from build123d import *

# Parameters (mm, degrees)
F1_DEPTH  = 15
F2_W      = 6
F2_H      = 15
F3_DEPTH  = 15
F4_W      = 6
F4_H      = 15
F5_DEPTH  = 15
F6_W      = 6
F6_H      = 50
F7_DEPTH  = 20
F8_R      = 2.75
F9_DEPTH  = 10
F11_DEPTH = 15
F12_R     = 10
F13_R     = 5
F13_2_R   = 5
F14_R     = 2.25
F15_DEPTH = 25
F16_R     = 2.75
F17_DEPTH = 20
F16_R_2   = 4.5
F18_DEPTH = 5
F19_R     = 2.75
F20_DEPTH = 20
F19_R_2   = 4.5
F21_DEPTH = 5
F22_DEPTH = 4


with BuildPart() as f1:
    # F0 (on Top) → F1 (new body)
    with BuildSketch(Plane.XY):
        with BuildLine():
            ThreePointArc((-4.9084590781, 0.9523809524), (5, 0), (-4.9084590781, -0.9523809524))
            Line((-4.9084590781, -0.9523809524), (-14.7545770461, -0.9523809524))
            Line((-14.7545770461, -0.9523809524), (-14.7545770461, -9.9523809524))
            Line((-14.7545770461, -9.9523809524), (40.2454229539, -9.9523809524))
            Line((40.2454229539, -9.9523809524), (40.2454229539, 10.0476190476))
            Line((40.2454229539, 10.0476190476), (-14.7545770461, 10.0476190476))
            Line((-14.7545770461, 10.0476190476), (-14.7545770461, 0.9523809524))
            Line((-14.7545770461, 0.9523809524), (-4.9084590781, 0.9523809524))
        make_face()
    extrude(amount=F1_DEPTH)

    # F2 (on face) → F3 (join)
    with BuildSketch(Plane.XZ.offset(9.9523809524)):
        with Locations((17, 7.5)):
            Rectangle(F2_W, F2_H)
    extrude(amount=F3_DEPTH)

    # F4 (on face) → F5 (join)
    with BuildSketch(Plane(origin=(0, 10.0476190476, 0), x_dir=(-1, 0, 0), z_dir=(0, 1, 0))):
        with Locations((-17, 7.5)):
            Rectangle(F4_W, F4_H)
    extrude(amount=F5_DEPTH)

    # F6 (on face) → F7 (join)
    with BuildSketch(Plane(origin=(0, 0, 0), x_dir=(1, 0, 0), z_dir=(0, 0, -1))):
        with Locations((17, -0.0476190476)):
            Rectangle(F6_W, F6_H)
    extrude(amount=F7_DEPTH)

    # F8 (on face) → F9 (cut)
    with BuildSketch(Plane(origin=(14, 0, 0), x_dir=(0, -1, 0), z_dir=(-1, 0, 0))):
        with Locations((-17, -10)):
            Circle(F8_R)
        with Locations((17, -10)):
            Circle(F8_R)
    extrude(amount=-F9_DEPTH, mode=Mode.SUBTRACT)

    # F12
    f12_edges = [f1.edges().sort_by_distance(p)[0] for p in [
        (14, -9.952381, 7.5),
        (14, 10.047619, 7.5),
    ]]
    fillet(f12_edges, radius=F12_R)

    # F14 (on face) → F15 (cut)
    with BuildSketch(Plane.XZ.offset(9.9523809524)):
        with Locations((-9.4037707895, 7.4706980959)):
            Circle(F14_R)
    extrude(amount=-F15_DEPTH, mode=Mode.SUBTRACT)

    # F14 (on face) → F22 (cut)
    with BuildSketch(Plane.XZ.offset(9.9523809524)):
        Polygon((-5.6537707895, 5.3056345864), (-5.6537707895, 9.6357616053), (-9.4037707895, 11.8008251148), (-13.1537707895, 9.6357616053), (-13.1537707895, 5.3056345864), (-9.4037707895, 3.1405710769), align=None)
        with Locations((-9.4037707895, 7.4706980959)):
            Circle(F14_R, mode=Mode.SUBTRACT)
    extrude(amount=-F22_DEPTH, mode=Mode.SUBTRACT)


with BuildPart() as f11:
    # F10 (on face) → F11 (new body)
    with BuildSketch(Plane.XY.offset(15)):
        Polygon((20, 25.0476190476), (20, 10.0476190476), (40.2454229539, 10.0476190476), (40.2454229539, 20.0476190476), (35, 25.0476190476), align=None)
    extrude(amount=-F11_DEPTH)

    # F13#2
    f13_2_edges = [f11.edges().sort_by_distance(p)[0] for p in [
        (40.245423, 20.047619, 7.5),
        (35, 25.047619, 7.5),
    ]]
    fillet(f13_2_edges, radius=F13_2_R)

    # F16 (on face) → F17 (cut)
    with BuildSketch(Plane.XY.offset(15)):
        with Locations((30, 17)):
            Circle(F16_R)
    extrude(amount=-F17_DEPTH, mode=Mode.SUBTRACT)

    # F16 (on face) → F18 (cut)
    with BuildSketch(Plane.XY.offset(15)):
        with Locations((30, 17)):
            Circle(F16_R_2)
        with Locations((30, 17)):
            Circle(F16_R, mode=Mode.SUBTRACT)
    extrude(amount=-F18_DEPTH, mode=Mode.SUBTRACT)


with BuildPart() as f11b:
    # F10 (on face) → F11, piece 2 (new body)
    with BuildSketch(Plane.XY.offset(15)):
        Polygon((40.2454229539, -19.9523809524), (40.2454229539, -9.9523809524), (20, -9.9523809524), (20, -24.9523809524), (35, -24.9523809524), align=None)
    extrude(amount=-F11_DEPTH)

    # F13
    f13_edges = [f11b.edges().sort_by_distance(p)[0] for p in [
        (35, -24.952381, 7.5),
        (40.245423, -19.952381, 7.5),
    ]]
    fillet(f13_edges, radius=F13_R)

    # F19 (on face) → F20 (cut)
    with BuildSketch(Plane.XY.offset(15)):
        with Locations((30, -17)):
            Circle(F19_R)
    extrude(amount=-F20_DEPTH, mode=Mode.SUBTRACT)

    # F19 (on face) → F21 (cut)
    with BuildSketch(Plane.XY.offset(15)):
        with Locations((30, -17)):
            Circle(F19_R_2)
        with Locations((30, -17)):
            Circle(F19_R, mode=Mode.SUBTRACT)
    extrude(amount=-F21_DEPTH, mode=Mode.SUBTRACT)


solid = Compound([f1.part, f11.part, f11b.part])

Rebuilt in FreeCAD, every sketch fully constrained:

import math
import FreeCAD as App
import Part
import Sketcher
from FreeCAD import Vector
Q = App.Units.Quantity


def edges_at(feature, points):
    """Names of the edges that pass closest to the given points."""
    edges = feature.Shape.Edges
    near = lambda p: min(range(len(edges)), key=lambda i: edges[i].distToShape(Part.Vertex(*p))[0])
    return sorted({f"Edge{near(p) + 1}" for p in points})


def add_polygon(sketch, points):
    """Adds a closed chain of lines whose ends are joined by coincident constraints."""
    first, n = sketch.GeometryCount, len(points)
    for a, b in zip(points, points[1:] + points[:1]):
        sketch.addGeometry(Part.LineSegment(App.Vector(*a, 0), App.Vector(*b, 0)), False)
    for i in range(n):
        sketch.addConstraint(Sketcher.Constraint("Coincident", first + i, 2, first + (i + 1) % n, 1))

doc = App.newDocument("Part")
body = doc.addObject("PartDesign::Body", "Body")

sketch1 = body.newObject("Sketcher::SketchObject", "Sketch")
sketch1.AttachmentSupport = (doc.getObject("XY_Plane"), [""])
sketch1.MapMode = "FlatFace"
sketch1.addGeometry([
    Part.ArcOfCircle(Part.Circle(Vector(0, 0, 0), Vector(0, 0, 1), 5), math.radians(-169), math.radians(169)),
    Part.LineSegment(Vector(-4.9, -1, 0), Vector(-14.8, -1, 0)),
    Part.LineSegment(Vector(-14.8, -1, 0), Vector(-14.8, -10, 0)),
    Part.LineSegment(Vector(-14.8, -10, 0), Vector(40.2, -10, 0)),
    Part.LineSegment(Vector(40.2, -10, 0), Vector(40.2, 10, 0)),
    Part.LineSegment(Vector(40.2, 10, 0), Vector(-14.8, 10, 0)),
    Part.LineSegment(Vector(-14.8, 10, 0), Vector(-14.8, 1, 0)),
    Part.LineSegment(Vector(-14.8, 1, 0), Vector(-4.9, 1, 0)),
], False)
sketch1.addConstraint([
    Sketcher.Constraint("Coincident", 0, 1, 1, 1),
    Sketcher.Constraint("Coincident", 1, 2, 2, 1),
    Sketcher.Constraint("Coincident", 2, 2, 3, 1),
    Sketcher.Constraint("Coincident", 3, 2, 4, 1),
    Sketcher.Constraint("Coincident", 4, 2, 5, 1),
    Sketcher.Constraint("Coincident", 5, 2, 6, 1),
    Sketcher.Constraint("Coincident", 6, 2, 7, 1),
    Sketcher.Constraint("Coincident", 7, 2, 0, 2),
    Sketcher.Constraint("Horizontal", 1),
    Sketcher.Constraint("Vertical", 2),
    Sketcher.Constraint("Horizontal", 3),
    Sketcher.Constraint("Vertical", 4),
    Sketcher.Constraint("Horizontal", 5),
    Sketcher.Constraint("Vertical", 6),
    Sketcher.Constraint("Horizontal", 7),
    Sketcher.Constraint("Coincident", 0, 3, -1, 1),
    Sketcher.Constraint("Symmetric", 1, 2, 6, 2, -1),
    Sketcher.Constraint("Radius", 0, 5.0),
    Sketcher.Constraint("DistanceX", 3, 1, 3, 2, 55.0),
    Sketcher.Constraint("DistanceY", 2, 2, 2, 1, 9.0),
    Sketcher.Constraint("DistanceY", 4, 1, 4, 2, 20.0),
    Sketcher.Constraint("DistanceY", 6, 2, 6, 1, 9.095238),
    Sketcher.Constraint("DistanceX", 1, 2, 1, 1, 9.846118),
])
pad1 = body.newObject("PartDesign::Pad", "Pad")
pad1.Profile = sketch1
pad1.Length = 15

sketch2 = body.newObject("Sketcher::SketchObject", "Sketch001")
sketch2.AttachmentSupport = (doc.getObject("XZ_Plane"), [""])
sketch2.MapMode = "FlatFace"
sketch2.AttachmentOffset = App.Placement(Vector(0, 0, 9.952381), App.Rotation())
add_polygon(sketch2, [(14, 15), (14, 0), (20, 0), (20, 15)])
sketch2.addConstraint([
    Sketcher.Constraint("Vertical", 0),
    Sketcher.Constraint("Horizontal", 1),
    Sketcher.Constraint("Vertical", 2),
    Sketcher.Constraint("Horizontal", 3),
    Sketcher.Constraint("PointOnObject", 0, 2, -1),
    Sketcher.Constraint("DistanceX", 1, 1, 1, 2, 6.0),
    Sketcher.Constraint("DistanceY", 0, 2, 0, 1, 15.0),
    Sketcher.Constraint("DistanceX", -1, 1, 0, 2, 14.0),
])
pad2 = body.newObject("PartDesign::Pad", "Pad001")
pad2.Profile = sketch2
pad2.Length = 15

sketch3 = body.newObject("Sketcher::SketchObject", "Sketch002")
sketch3.AttachmentSupport = (doc.getObject("XZ_Plane"), [""])
sketch3.MapMode = "FlatFace"
sketch3.AttachmentOffset = App.Placement(Vector(0, 0, -10.047619), App.Rotation())
add_polygon(sketch3, [(20, 15), (20, 0), (14, 0), (14, 15)])
sketch3.addConstraint([
    Sketcher.Constraint("Vertical", 0),
    Sketcher.Constraint("Horizontal", 1),
    Sketcher.Constraint("Vertical", 2),
    Sketcher.Constraint("Horizontal", 3),
    Sketcher.Constraint("PointOnObject", 0, 2, -1),
    Sketcher.Constraint("DistanceX", 1, 2, 1, 1, 6.0),
    Sketcher.Constraint("DistanceY", 0, 2, 0, 1, 15.0),
    Sketcher.Constraint("DistanceX", -1, 1, 0, 2, 20.0),
])
pad3 = body.newObject("PartDesign::Pad", "Pad002")
pad3.Profile = sketch3
pad3.Length = 15
pad3.Reversed = True

sketch4 = body.newObject("Sketcher::SketchObject", "Sketch003")
sketch4.AttachmentSupport = (doc.getObject("XY_Plane"), [""])
sketch4.MapMode = "FlatFace"
add_polygon(sketch4, [(14, -25), (14, 25), (20, 25), (20, -25)])
sketch4.addConstraint([
    Sketcher.Constraint("Vertical", 0),
    Sketcher.Constraint("Horizontal", 1),
    Sketcher.Constraint("Vertical", 2),
    Sketcher.Constraint("Horizontal", 3),
    Sketcher.Constraint("DistanceX", 1, 1, 1, 2, 6.0),
    Sketcher.Constraint("DistanceY", 0, 1, 0, 2, 50.0),
    Sketcher.Constraint("DistanceX", -1, 1, 0, 2, 14.0),
    Sketcher.Constraint("DistanceY", -1, 1, 0, 2, 25.047619),
])
pad4 = body.newObject("PartDesign::Pad", "Pad003")
pad4.Profile = sketch4
pad4.Length = 20
pad4.Reversed = True

sketch5 = body.newObject("Sketcher::SketchObject", "Sketch004")
sketch5.AttachmentSupport = (doc.getObject("YZ_Plane"), [""])
sketch5.MapMode = "FlatFace"
sketch5.AttachmentOffset = App.Placement(Vector(0, 0, 14), App.Rotation())
sketch5.addGeometry([
    Part.Circle(Vector(17, -10, 0), Vector(0, 0, 1), 2.8),
    Part.Circle(Vector(-17, -10, 0), Vector(0, 0, 1), 2.8),
], False)
sketch5.addConstraint([
    Sketcher.Constraint("Equal", 0, 1),
    Sketcher.Constraint("Symmetric", 0, 3, 1, 3, -2),
    Sketcher.Constraint("Diameter", 0, 5.5),
    Sketcher.Constraint("DistanceX", -1, 1, 0, 3, 17.0),
    Sketcher.Constraint("DistanceY", 0, 3, -1, 1, 10.0),
])
pocket1 = body.newObject("PartDesign::Pocket", "Pocket")
pocket1.Profile = sketch5
pocket1.Length = 10
pocket1.Reversed = True
doc.recompute()

fillet = body.newObject("PartDesign::Fillet", "Fillet")
fillet.Base = (pocket1, edges_at(pocket1, [(14, -9.952, 7.5), (14, 10.048, 7.5)]))
fillet.Radius = 10

sketch6 = body.newObject("Sketcher::SketchObject", "Sketch005")
sketch6.AttachmentSupport = (doc.getObject("XZ_Plane"), [""])
sketch6.MapMode = "FlatFace"
sketch6.AttachmentOffset = App.Placement(Vector(0, 0, 9.952381), App.Rotation())
sketch6.addGeometry(Part.Circle(Vector(-9.4, 7.5, 0), Vector(0, 0, 1), 2.2), False)
sketch6.addConstraint([
    Sketcher.Constraint("Diameter", 0, 4.5),
    Sketcher.Constraint("DistanceY", -1, 1, 0, 3, 7.470698),
    Sketcher.Constraint("DistanceX", 0, 3, -1, 1, 9.403771),
])
pocket2 = body.newObject("PartDesign::Pocket", "Pocket001")
pocket2.Profile = sketch6
pocket2.Length = 25

sketch7 = body.newObject("Sketcher::SketchObject", "Sketch006")
sketch7.AttachmentSupport = (doc.getObject("XZ_Plane"), [""])
sketch7.MapMode = "FlatFace"
sketch7.AttachmentOffset = App.Placement(Vector(0, 0, 9.952381), App.Rotation())
add_polygon(sketch7, [(-5.7, 5.3), (-5.7, 9.6), (-9.4, 11.8), (-13.2, 9.6), (-13.2, 5.3), (-9.4, 3.1)])
sketch7.addGeometry(Part.Circle(Vector(-9.4, 7.5, 0), Vector(0, 0, 1), 2.2), False)
sketch7.addConstraint([
    Sketcher.Constraint("Vertical", 0),
    Sketcher.Constraint("Vertical", 3),
    Sketcher.Constraint("Parallel", 1, 4),
    Sketcher.Constraint("Parallel", 2, 5),
    Sketcher.Constraint("Horizontal", 0, 2, 2, 2),
    Sketcher.Constraint("Horizontal", 3, 2, 5, 2),
    Sketcher.Constraint("Vertical", 6, 3, 1, 2),
    Sketcher.Constraint("Vertical", 1, 2, 4, 2),
    Sketcher.Constraint("Diameter", 6, 4.5),
    Sketcher.Constraint("Angle", 1, Q("150 deg")),
    Sketcher.Constraint("DistanceX", 2, 2, 0, 2, 7.5),
    Sketcher.Constraint("DistanceY", -1, 1, 6, 3, 7.470698),
    Sketcher.Constraint("DistanceY", 0, 1, 0, 2, 4.330127),
    Sketcher.Constraint("DistanceX", 6, 3, -1, 1, 9.403771),
    Sketcher.Constraint("DistanceY", -1, 1, 0, 2, 9.635762),
])
pocket3 = body.newObject("PartDesign::Pocket", "Pocket002")
pocket3.Profile = sketch7
pocket3.Length = 4
body2 = doc.addObject("PartDesign::Body", "Body001")

sketch8 = body2.newObject("Sketcher::SketchObject", "Sketch007")
sketch8.AttachmentSupport = (doc.getObject("XY_Plane001"), [""])
sketch8.MapMode = "FlatFace"
sketch8.AttachmentOffset = App.Placement(Vector(0, 0, 15), App.Rotation())
add_polygon(sketch8, [(20, 25), (20, 10), (40, 10), (40, 20), (35, 25)])
sketch8.addConstraint([
    Sketcher.Constraint("Vertical", 0),
    Sketcher.Constraint("Horizontal", 1),
    Sketcher.Constraint("Vertical", 2),
    Sketcher.Constraint("Horizontal", 4),
    Sketcher.Constraint("Equal", 4, 0),
    Sketcher.Constraint("DistanceX", 4, 2, 4, 1, 15.0),
    Sketcher.Constraint("DistanceY", 2, 1, 2, 2, 10.0),
    Sketcher.Constraint("DistanceX", -1, 1, 0, 2, 20.0),
    Sketcher.Constraint("DistanceX", 1, 1, 1, 2, 20.245423),
    Sketcher.Constraint("DistanceY", -1, 1, 0, 2, 10.047619),
])
pad5 = body2.newObject("PartDesign::Pad", "Pad004")
pad5.Profile = sketch8
pad5.Length = 15
pad5.Reversed = True
doc.recompute()

fillet2 = body2.newObject("PartDesign::Fillet", "Fillet001")
fillet2.Base = (pad5, edges_at(pad5, [(40.245, 20.048, 7.5), (35, 25.048, 7.5)]))
fillet2.Radius = 5

sketch9 = body2.newObject("Sketcher::SketchObject", "Sketch008")
sketch9.AttachmentSupport = (doc.getObject("XY_Plane001"), [""])
sketch9.MapMode = "FlatFace"
sketch9.AttachmentOffset = App.Placement(Vector(0, 0, 15), App.Rotation())
sketch9.addGeometry(Part.Circle(Vector(30, 17, 0), Vector(0, 0, 1), 2.8), False)
sketch9.addConstraint([
    Sketcher.Constraint("Diameter", 0, 5.5),
    Sketcher.Constraint("DistanceX", -1, 1, 0, 3, 30.0),
    Sketcher.Constraint("DistanceY", -1, 1, 0, 3, 17.0),
])
pocket4 = body2.newObject("PartDesign::Pocket", "Pocket003")
pocket4.Profile = sketch9
pocket4.Length = 20

sketch10 = body2.newObject("Sketcher::SketchObject", "Sketch009")
sketch10.AttachmentSupport = (doc.getObject("XY_Plane001"), [""])
sketch10.MapMode = "FlatFace"
sketch10.AttachmentOffset = App.Placement(Vector(0, 0, 15), App.Rotation())
sketch10.addGeometry([
    Part.Circle(Vector(30, 17, 0), Vector(0, 0, 1), 4.5),
    Part.Circle(Vector(30, 17, 0), Vector(0, 0, 1), 2.8),
], False)
sketch10.addConstraint([
    Sketcher.Constraint("Coincident", 1, 3, 0, 3),
    Sketcher.Constraint("Diameter", 0, 9.0),
    Sketcher.Constraint("Diameter", 1, 5.5),
    Sketcher.Constraint("DistanceX", -1, 1, 0, 3, 30.0),
    Sketcher.Constraint("DistanceY", -1, 1, 0, 3, 17.0),
])
pocket5 = body2.newObject("PartDesign::Pocket", "Pocket004")
pocket5.Profile = sketch10
pocket5.Length = 5
body3 = doc.addObject("PartDesign::Body", "Body002")

sketch11 = body3.newObject("Sketcher::SketchObject", "Sketch010")
sketch11.AttachmentSupport = (doc.getObject("XY_Plane002"), [""])
sketch11.MapMode = "FlatFace"
sketch11.AttachmentOffset = App.Placement(Vector(0, 0, 15), App.Rotation())
add_polygon(sketch11, [(40, -20), (40, -10), (20, -10), (20, -25), (35, -25)])
sketch11.addConstraint([
    Sketcher.Constraint("Vertical", 0),
    Sketcher.Constraint("Horizontal", 1),
    Sketcher.Constraint("Vertical", 2),
    Sketcher.Constraint("Horizontal", 3),
    Sketcher.Constraint("Equal", 3, 2),
    Sketcher.Constraint("DistanceX", 3, 1, 3, 2, 15.0),
    Sketcher.Constraint("DistanceY", 0, 1, 0, 2, 10.0),
    Sketcher.Constraint("DistanceX", -1, 1, 1, 2, 20.0),
    Sketcher.Constraint("DistanceX", 1, 2, 1, 1, 20.245423),
    Sketcher.Constraint("DistanceY", 0, 2, -1, 1, 9.952381),
])
pad6 = body3.newObject("PartDesign::Pad", "Pad005")
pad6.Profile = sketch11
pad6.Length = 15
pad6.Reversed = True
doc.recompute()

fillet3 = body3.newObject("PartDesign::Fillet", "Fillet002")
fillet3.Base = (pad6, edges_at(pad6, [(35, -24.952, 7.5), (40.245, -19.952, 7.5)]))
fillet3.Radius = 5

sketch12 = body3.newObject("Sketcher::SketchObject", "Sketch011")
sketch12.AttachmentSupport = (doc.getObject("XY_Plane002"), [""])
sketch12.MapMode = "FlatFace"
sketch12.AttachmentOffset = App.Placement(Vector(0, 0, 15), App.Rotation())
sketch12.addGeometry(Part.Circle(Vector(30, -17, 0), Vector(0, 0, 1), 2.8), False)
sketch12.addConstraint([
    Sketcher.Constraint("Diameter", 0, 5.5),
    Sketcher.Constraint("DistanceX", -1, 1, 0, 3, 30.0),
    Sketcher.Constraint("DistanceY", 0, 3, -1, 1, 17.0),
])
pocket6 = body3.newObject("PartDesign::Pocket", "Pocket005")
pocket6.Profile = sketch12
pocket6.Length = 20

sketch13 = body3.newObject("Sketcher::SketchObject", "Sketch012")
sketch13.AttachmentSupport = (doc.getObject("XY_Plane002"), [""])
sketch13.MapMode = "FlatFace"
sketch13.AttachmentOffset = App.Placement(Vector(0, 0, 15), App.Rotation())
sketch13.addGeometry([
    Part.Circle(Vector(30, -17, 0), Vector(0, 0, 1), 4.5),
    Part.Circle(Vector(30, -17, 0), Vector(0, 0, 1), 2.8),
], False)
sketch13.addConstraint([
    Sketcher.Constraint("Coincident", 1, 3, 0, 3),
    Sketcher.Constraint("Diameter", 0, 9.0),
    Sketcher.Constraint("Diameter", 1, 5.5),
    Sketcher.Constraint("DistanceX", -1, 1, 0, 3, 30.0),
    Sketcher.Constraint("DistanceY", 0, 3, -1, 1, 17.0),
])
pocket7 = body3.newObject("PartDesign::Pocket", "Pocket006")
pocket7.Profile = sketch13
pocket7.Length = 5

doc.recompute()
